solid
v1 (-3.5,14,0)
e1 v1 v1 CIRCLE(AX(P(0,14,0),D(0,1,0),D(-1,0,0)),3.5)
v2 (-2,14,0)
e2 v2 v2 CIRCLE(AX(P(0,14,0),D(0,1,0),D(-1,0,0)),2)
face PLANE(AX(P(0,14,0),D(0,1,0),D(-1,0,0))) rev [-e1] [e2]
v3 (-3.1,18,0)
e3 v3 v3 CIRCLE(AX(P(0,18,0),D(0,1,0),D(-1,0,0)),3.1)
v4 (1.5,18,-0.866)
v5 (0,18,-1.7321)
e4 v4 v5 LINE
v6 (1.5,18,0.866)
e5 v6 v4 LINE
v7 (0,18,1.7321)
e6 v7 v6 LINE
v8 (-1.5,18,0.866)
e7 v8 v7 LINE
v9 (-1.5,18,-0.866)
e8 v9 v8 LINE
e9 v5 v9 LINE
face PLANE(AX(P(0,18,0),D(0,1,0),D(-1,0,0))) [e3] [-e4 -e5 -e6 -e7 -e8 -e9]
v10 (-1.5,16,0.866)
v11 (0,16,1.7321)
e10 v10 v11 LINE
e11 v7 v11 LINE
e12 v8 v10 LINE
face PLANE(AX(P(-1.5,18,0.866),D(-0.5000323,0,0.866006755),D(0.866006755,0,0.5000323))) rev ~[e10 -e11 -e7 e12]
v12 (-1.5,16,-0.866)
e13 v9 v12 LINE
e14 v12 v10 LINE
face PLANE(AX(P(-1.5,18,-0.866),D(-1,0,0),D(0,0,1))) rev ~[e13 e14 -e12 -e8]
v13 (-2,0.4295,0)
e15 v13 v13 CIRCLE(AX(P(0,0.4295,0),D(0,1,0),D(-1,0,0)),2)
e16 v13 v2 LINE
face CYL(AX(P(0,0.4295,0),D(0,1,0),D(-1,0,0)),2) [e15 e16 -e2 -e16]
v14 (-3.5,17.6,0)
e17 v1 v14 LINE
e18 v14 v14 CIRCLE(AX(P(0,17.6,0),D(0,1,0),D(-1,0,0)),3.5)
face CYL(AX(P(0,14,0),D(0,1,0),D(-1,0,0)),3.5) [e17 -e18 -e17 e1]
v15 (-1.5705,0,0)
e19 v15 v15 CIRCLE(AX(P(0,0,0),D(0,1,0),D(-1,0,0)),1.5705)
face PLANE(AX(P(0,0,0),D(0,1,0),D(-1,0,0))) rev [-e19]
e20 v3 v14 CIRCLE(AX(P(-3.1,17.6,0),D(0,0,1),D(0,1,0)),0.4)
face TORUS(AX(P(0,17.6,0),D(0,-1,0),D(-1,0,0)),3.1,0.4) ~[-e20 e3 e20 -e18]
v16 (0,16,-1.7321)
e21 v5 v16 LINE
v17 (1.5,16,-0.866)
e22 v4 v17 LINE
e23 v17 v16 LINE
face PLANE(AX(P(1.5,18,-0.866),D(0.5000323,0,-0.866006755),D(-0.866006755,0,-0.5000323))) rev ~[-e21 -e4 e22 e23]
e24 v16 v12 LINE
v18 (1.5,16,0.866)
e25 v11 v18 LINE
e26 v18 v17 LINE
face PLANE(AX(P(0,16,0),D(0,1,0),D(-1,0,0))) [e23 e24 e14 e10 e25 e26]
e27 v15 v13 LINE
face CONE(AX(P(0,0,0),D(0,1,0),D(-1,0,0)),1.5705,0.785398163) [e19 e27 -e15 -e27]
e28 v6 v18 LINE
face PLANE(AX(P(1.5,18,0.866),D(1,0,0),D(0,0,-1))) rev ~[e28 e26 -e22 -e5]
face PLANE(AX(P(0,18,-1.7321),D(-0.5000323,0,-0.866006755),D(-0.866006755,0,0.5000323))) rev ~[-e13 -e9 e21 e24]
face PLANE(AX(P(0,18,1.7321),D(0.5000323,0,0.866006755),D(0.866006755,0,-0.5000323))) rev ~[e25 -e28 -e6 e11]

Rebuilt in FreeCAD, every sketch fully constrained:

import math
import FreeCAD as App
import Part
import Sketcher
Q = App.Units.Quantity


def add_polygon(sketch, points):
    """Adds a closed chain of lines whose ends are joined by coincident constraints."""
    first, n = sketch.GeometryCount, len(points)
    for a, b in zip(points, points[1:] + points[:1]):
        sketch.addGeometry(Part.LineSegment(App.Vector(*a, 0), App.Vector(*b, 0)), False)
    for i in range(n):
        sketch.addConstraint(Sketcher.Constraint("Coincident", first + i, 2, first + (i + 1) % n, 1))

doc = App.newDocument("Part")
body = doc.addObject("PartDesign::Body", "Body")

# Sketch on XY plane
sketch1 = body.newObject("Sketcher::SketchObject", "Sketch")
sketch1.AttachmentSupport = (doc.getObject("XY_Plane"), [""])
sketch1.MapMode = "FlatFace"
sketch1.addGeometry(Part.LineSegment(App.Vector(0, 0, 0), App.Vector(0, 18, 0)), False)
sketch1.addGeometry(Part.LineSegment(App.Vector(0, 18, 0), App.Vector(-3.1, 18, 0)), False)
sketch1.addGeometry(Part.ArcOfCircle(Part.Circle(App.Vector(-3.1, 17.6, 0), App.Vector(0, 0, 1), 0.4), math.radians(90), math.radians(180)), False)
sketch1.addGeometry(Part.LineSegment(App.Vector(-3.5, 17.6, 0), App.Vector(-3.5, 14, 0)), False)
sketch1.addGeometry(Part.LineSegment(App.Vector(-3.5, 14, 0), App.Vector(-2, 14, 0)), False)
sketch1.addGeometry(Part.LineSegment(App.Vector(-2, 14, 0), App.Vector(-2, 0.43, 0)), False)
sketch1.addGeometry(Part.LineSegment(App.Vector(-2, 0.43, 0), App.Vector(-1.57, 0, 0)), False)
sketch1.addGeometry(Part.LineSegment(App.Vector(-1.57, 0, 0), App.Vector(0, 0, 0)), False)
sketch1.addConstraint(Sketcher.Constraint("Coincident", 0, 2, 1, 1))
sketch1.addConstraint(Sketcher.Constraint("Tangent", 1, 2, 2, 1))
sketch1.addConstraint(Sketcher.Constraint("Tangent", 2, 2, 3, 1))
sketch1.addConstraint(Sketcher.Constraint("Coincident", 3, 2, 4, 1))
sketch1.addConstraint(Sketcher.Constraint("Coincident", 4, 2, 5, 1))
sketch1.addConstraint(Sketcher.Constraint("Coincident", 5, 2, 6, 1))
sketch1.addConstraint(Sketcher.Constraint("Coincident", 6, 2, 7, 1))
sketch1.addConstraint(Sketcher.Constraint("Coincident", 7, 2, 0, 1))
sketch1.addConstraint(Sketcher.Constraint("Vertical", 0))
sketch1.addConstraint(Sketcher.Constraint("Horizontal", 1))
sketch1.addConstraint(Sketcher.Constraint("Vertical", 3))
sketch1.addConstraint(Sketcher.Constraint("Horizontal", 4))
sketch1.addConstraint(Sketcher.Constraint("Vertical", 5))
sketch1.addConstraint(Sketcher.Constraint("Horizontal", 7))
sketch1.addConstraint(Sketcher.Constraint("Coincident", 7, 2, -1, 1))
sketch1.addConstraint(Sketcher.Constraint("Radius", 2, Q("0.4 mm")))
sketch1.addConstraint(Sketcher.Constraint("DistanceY", 0, 1, 0, 2, Q("18 mm")))
sketch1.addConstraint(Sketcher.Constraint("Angle", 6, Q("-45 deg")))
sketch1.addConstraint(Sketcher.Constraint("DistanceX", 1, 2, 1, 1, Q("3.1 mm")))
sketch1.addConstraint(Sketcher.Constraint("DistanceX", 4, 1, 4, 2, Q("1.5 mm")))
sketch1.addConstraint(Sketcher.Constraint("DistanceY", 3, 2, 3, 1, Q("3.6 mm")))
sketch1.addConstraint(Sketcher.Constraint("DistanceX", 7, 1, 7, 2, Q("1.5705 mm")))
revolution = body.newObject("PartDesign::Revolution", "Revolution")
revolution.Profile = sketch1
revolution.ReferenceAxis = (sketch1, ["V_Axis"])
revolution.Angle = 360

# Sketch on XZ plane
sketch2 = body.newObject("Sketcher::SketchObject", "Sketch001")
sketch2.AttachmentSupport = (doc.getObject("XZ_Plane"), [""])
sketch2.MapMode = "FlatFace"
sketch2.AttachmentOffset = App.Placement(App.Vector(0, 0, -18), App.Rotation())
add_polygon(sketch2, [(1.5, 0.9), (1.5, -0.9), (0, -1.7), (-1.5, -0.9), (-1.5, 0.9), (0, 1.7)])  # lines 0-5
sketch2.addConstraint(Sketcher.Constraint("Vertical", 0))
sketch2.addConstraint(Sketcher.Constraint("Vertical", 3))
sketch2.addConstraint(Sketcher.Constraint("Symmetric", 0, 2, 3, 2, -1, 1))
sketch2.addConstraint(Sketcher.Constraint("Symmetric", 1, 2, 4, 2, -1, 1))
sketch2.addConstraint(Sketcher.Constraint("PointOnObject", 1, 2, -2))
sketch2.addConstraint(Sketcher.Constraint("Parallel", 2, 5))
sketch2.addConstraint(Sketcher.Constraint("Horizontal", 0, 2, 2, 2))
sketch2.addConstraint(Sketcher.Constraint("DistanceX", 2, 2, 0, 2, Q("3 mm")))
sketch2.addConstraint(Sketcher.Constraint("DistanceY", 0, 2, 0, 1, Q("1.732 mm")))
sketch2.addConstraint(Sketcher.Constraint("Distance", 1, Q("1.732 mm")))
pocket1 = body.newObject("PartDesign::Pocket", "Pocket")
pocket1.Profile = sketch2
pocket1.Length = 2
pocket1.Reversed = True

doc.recompute()
